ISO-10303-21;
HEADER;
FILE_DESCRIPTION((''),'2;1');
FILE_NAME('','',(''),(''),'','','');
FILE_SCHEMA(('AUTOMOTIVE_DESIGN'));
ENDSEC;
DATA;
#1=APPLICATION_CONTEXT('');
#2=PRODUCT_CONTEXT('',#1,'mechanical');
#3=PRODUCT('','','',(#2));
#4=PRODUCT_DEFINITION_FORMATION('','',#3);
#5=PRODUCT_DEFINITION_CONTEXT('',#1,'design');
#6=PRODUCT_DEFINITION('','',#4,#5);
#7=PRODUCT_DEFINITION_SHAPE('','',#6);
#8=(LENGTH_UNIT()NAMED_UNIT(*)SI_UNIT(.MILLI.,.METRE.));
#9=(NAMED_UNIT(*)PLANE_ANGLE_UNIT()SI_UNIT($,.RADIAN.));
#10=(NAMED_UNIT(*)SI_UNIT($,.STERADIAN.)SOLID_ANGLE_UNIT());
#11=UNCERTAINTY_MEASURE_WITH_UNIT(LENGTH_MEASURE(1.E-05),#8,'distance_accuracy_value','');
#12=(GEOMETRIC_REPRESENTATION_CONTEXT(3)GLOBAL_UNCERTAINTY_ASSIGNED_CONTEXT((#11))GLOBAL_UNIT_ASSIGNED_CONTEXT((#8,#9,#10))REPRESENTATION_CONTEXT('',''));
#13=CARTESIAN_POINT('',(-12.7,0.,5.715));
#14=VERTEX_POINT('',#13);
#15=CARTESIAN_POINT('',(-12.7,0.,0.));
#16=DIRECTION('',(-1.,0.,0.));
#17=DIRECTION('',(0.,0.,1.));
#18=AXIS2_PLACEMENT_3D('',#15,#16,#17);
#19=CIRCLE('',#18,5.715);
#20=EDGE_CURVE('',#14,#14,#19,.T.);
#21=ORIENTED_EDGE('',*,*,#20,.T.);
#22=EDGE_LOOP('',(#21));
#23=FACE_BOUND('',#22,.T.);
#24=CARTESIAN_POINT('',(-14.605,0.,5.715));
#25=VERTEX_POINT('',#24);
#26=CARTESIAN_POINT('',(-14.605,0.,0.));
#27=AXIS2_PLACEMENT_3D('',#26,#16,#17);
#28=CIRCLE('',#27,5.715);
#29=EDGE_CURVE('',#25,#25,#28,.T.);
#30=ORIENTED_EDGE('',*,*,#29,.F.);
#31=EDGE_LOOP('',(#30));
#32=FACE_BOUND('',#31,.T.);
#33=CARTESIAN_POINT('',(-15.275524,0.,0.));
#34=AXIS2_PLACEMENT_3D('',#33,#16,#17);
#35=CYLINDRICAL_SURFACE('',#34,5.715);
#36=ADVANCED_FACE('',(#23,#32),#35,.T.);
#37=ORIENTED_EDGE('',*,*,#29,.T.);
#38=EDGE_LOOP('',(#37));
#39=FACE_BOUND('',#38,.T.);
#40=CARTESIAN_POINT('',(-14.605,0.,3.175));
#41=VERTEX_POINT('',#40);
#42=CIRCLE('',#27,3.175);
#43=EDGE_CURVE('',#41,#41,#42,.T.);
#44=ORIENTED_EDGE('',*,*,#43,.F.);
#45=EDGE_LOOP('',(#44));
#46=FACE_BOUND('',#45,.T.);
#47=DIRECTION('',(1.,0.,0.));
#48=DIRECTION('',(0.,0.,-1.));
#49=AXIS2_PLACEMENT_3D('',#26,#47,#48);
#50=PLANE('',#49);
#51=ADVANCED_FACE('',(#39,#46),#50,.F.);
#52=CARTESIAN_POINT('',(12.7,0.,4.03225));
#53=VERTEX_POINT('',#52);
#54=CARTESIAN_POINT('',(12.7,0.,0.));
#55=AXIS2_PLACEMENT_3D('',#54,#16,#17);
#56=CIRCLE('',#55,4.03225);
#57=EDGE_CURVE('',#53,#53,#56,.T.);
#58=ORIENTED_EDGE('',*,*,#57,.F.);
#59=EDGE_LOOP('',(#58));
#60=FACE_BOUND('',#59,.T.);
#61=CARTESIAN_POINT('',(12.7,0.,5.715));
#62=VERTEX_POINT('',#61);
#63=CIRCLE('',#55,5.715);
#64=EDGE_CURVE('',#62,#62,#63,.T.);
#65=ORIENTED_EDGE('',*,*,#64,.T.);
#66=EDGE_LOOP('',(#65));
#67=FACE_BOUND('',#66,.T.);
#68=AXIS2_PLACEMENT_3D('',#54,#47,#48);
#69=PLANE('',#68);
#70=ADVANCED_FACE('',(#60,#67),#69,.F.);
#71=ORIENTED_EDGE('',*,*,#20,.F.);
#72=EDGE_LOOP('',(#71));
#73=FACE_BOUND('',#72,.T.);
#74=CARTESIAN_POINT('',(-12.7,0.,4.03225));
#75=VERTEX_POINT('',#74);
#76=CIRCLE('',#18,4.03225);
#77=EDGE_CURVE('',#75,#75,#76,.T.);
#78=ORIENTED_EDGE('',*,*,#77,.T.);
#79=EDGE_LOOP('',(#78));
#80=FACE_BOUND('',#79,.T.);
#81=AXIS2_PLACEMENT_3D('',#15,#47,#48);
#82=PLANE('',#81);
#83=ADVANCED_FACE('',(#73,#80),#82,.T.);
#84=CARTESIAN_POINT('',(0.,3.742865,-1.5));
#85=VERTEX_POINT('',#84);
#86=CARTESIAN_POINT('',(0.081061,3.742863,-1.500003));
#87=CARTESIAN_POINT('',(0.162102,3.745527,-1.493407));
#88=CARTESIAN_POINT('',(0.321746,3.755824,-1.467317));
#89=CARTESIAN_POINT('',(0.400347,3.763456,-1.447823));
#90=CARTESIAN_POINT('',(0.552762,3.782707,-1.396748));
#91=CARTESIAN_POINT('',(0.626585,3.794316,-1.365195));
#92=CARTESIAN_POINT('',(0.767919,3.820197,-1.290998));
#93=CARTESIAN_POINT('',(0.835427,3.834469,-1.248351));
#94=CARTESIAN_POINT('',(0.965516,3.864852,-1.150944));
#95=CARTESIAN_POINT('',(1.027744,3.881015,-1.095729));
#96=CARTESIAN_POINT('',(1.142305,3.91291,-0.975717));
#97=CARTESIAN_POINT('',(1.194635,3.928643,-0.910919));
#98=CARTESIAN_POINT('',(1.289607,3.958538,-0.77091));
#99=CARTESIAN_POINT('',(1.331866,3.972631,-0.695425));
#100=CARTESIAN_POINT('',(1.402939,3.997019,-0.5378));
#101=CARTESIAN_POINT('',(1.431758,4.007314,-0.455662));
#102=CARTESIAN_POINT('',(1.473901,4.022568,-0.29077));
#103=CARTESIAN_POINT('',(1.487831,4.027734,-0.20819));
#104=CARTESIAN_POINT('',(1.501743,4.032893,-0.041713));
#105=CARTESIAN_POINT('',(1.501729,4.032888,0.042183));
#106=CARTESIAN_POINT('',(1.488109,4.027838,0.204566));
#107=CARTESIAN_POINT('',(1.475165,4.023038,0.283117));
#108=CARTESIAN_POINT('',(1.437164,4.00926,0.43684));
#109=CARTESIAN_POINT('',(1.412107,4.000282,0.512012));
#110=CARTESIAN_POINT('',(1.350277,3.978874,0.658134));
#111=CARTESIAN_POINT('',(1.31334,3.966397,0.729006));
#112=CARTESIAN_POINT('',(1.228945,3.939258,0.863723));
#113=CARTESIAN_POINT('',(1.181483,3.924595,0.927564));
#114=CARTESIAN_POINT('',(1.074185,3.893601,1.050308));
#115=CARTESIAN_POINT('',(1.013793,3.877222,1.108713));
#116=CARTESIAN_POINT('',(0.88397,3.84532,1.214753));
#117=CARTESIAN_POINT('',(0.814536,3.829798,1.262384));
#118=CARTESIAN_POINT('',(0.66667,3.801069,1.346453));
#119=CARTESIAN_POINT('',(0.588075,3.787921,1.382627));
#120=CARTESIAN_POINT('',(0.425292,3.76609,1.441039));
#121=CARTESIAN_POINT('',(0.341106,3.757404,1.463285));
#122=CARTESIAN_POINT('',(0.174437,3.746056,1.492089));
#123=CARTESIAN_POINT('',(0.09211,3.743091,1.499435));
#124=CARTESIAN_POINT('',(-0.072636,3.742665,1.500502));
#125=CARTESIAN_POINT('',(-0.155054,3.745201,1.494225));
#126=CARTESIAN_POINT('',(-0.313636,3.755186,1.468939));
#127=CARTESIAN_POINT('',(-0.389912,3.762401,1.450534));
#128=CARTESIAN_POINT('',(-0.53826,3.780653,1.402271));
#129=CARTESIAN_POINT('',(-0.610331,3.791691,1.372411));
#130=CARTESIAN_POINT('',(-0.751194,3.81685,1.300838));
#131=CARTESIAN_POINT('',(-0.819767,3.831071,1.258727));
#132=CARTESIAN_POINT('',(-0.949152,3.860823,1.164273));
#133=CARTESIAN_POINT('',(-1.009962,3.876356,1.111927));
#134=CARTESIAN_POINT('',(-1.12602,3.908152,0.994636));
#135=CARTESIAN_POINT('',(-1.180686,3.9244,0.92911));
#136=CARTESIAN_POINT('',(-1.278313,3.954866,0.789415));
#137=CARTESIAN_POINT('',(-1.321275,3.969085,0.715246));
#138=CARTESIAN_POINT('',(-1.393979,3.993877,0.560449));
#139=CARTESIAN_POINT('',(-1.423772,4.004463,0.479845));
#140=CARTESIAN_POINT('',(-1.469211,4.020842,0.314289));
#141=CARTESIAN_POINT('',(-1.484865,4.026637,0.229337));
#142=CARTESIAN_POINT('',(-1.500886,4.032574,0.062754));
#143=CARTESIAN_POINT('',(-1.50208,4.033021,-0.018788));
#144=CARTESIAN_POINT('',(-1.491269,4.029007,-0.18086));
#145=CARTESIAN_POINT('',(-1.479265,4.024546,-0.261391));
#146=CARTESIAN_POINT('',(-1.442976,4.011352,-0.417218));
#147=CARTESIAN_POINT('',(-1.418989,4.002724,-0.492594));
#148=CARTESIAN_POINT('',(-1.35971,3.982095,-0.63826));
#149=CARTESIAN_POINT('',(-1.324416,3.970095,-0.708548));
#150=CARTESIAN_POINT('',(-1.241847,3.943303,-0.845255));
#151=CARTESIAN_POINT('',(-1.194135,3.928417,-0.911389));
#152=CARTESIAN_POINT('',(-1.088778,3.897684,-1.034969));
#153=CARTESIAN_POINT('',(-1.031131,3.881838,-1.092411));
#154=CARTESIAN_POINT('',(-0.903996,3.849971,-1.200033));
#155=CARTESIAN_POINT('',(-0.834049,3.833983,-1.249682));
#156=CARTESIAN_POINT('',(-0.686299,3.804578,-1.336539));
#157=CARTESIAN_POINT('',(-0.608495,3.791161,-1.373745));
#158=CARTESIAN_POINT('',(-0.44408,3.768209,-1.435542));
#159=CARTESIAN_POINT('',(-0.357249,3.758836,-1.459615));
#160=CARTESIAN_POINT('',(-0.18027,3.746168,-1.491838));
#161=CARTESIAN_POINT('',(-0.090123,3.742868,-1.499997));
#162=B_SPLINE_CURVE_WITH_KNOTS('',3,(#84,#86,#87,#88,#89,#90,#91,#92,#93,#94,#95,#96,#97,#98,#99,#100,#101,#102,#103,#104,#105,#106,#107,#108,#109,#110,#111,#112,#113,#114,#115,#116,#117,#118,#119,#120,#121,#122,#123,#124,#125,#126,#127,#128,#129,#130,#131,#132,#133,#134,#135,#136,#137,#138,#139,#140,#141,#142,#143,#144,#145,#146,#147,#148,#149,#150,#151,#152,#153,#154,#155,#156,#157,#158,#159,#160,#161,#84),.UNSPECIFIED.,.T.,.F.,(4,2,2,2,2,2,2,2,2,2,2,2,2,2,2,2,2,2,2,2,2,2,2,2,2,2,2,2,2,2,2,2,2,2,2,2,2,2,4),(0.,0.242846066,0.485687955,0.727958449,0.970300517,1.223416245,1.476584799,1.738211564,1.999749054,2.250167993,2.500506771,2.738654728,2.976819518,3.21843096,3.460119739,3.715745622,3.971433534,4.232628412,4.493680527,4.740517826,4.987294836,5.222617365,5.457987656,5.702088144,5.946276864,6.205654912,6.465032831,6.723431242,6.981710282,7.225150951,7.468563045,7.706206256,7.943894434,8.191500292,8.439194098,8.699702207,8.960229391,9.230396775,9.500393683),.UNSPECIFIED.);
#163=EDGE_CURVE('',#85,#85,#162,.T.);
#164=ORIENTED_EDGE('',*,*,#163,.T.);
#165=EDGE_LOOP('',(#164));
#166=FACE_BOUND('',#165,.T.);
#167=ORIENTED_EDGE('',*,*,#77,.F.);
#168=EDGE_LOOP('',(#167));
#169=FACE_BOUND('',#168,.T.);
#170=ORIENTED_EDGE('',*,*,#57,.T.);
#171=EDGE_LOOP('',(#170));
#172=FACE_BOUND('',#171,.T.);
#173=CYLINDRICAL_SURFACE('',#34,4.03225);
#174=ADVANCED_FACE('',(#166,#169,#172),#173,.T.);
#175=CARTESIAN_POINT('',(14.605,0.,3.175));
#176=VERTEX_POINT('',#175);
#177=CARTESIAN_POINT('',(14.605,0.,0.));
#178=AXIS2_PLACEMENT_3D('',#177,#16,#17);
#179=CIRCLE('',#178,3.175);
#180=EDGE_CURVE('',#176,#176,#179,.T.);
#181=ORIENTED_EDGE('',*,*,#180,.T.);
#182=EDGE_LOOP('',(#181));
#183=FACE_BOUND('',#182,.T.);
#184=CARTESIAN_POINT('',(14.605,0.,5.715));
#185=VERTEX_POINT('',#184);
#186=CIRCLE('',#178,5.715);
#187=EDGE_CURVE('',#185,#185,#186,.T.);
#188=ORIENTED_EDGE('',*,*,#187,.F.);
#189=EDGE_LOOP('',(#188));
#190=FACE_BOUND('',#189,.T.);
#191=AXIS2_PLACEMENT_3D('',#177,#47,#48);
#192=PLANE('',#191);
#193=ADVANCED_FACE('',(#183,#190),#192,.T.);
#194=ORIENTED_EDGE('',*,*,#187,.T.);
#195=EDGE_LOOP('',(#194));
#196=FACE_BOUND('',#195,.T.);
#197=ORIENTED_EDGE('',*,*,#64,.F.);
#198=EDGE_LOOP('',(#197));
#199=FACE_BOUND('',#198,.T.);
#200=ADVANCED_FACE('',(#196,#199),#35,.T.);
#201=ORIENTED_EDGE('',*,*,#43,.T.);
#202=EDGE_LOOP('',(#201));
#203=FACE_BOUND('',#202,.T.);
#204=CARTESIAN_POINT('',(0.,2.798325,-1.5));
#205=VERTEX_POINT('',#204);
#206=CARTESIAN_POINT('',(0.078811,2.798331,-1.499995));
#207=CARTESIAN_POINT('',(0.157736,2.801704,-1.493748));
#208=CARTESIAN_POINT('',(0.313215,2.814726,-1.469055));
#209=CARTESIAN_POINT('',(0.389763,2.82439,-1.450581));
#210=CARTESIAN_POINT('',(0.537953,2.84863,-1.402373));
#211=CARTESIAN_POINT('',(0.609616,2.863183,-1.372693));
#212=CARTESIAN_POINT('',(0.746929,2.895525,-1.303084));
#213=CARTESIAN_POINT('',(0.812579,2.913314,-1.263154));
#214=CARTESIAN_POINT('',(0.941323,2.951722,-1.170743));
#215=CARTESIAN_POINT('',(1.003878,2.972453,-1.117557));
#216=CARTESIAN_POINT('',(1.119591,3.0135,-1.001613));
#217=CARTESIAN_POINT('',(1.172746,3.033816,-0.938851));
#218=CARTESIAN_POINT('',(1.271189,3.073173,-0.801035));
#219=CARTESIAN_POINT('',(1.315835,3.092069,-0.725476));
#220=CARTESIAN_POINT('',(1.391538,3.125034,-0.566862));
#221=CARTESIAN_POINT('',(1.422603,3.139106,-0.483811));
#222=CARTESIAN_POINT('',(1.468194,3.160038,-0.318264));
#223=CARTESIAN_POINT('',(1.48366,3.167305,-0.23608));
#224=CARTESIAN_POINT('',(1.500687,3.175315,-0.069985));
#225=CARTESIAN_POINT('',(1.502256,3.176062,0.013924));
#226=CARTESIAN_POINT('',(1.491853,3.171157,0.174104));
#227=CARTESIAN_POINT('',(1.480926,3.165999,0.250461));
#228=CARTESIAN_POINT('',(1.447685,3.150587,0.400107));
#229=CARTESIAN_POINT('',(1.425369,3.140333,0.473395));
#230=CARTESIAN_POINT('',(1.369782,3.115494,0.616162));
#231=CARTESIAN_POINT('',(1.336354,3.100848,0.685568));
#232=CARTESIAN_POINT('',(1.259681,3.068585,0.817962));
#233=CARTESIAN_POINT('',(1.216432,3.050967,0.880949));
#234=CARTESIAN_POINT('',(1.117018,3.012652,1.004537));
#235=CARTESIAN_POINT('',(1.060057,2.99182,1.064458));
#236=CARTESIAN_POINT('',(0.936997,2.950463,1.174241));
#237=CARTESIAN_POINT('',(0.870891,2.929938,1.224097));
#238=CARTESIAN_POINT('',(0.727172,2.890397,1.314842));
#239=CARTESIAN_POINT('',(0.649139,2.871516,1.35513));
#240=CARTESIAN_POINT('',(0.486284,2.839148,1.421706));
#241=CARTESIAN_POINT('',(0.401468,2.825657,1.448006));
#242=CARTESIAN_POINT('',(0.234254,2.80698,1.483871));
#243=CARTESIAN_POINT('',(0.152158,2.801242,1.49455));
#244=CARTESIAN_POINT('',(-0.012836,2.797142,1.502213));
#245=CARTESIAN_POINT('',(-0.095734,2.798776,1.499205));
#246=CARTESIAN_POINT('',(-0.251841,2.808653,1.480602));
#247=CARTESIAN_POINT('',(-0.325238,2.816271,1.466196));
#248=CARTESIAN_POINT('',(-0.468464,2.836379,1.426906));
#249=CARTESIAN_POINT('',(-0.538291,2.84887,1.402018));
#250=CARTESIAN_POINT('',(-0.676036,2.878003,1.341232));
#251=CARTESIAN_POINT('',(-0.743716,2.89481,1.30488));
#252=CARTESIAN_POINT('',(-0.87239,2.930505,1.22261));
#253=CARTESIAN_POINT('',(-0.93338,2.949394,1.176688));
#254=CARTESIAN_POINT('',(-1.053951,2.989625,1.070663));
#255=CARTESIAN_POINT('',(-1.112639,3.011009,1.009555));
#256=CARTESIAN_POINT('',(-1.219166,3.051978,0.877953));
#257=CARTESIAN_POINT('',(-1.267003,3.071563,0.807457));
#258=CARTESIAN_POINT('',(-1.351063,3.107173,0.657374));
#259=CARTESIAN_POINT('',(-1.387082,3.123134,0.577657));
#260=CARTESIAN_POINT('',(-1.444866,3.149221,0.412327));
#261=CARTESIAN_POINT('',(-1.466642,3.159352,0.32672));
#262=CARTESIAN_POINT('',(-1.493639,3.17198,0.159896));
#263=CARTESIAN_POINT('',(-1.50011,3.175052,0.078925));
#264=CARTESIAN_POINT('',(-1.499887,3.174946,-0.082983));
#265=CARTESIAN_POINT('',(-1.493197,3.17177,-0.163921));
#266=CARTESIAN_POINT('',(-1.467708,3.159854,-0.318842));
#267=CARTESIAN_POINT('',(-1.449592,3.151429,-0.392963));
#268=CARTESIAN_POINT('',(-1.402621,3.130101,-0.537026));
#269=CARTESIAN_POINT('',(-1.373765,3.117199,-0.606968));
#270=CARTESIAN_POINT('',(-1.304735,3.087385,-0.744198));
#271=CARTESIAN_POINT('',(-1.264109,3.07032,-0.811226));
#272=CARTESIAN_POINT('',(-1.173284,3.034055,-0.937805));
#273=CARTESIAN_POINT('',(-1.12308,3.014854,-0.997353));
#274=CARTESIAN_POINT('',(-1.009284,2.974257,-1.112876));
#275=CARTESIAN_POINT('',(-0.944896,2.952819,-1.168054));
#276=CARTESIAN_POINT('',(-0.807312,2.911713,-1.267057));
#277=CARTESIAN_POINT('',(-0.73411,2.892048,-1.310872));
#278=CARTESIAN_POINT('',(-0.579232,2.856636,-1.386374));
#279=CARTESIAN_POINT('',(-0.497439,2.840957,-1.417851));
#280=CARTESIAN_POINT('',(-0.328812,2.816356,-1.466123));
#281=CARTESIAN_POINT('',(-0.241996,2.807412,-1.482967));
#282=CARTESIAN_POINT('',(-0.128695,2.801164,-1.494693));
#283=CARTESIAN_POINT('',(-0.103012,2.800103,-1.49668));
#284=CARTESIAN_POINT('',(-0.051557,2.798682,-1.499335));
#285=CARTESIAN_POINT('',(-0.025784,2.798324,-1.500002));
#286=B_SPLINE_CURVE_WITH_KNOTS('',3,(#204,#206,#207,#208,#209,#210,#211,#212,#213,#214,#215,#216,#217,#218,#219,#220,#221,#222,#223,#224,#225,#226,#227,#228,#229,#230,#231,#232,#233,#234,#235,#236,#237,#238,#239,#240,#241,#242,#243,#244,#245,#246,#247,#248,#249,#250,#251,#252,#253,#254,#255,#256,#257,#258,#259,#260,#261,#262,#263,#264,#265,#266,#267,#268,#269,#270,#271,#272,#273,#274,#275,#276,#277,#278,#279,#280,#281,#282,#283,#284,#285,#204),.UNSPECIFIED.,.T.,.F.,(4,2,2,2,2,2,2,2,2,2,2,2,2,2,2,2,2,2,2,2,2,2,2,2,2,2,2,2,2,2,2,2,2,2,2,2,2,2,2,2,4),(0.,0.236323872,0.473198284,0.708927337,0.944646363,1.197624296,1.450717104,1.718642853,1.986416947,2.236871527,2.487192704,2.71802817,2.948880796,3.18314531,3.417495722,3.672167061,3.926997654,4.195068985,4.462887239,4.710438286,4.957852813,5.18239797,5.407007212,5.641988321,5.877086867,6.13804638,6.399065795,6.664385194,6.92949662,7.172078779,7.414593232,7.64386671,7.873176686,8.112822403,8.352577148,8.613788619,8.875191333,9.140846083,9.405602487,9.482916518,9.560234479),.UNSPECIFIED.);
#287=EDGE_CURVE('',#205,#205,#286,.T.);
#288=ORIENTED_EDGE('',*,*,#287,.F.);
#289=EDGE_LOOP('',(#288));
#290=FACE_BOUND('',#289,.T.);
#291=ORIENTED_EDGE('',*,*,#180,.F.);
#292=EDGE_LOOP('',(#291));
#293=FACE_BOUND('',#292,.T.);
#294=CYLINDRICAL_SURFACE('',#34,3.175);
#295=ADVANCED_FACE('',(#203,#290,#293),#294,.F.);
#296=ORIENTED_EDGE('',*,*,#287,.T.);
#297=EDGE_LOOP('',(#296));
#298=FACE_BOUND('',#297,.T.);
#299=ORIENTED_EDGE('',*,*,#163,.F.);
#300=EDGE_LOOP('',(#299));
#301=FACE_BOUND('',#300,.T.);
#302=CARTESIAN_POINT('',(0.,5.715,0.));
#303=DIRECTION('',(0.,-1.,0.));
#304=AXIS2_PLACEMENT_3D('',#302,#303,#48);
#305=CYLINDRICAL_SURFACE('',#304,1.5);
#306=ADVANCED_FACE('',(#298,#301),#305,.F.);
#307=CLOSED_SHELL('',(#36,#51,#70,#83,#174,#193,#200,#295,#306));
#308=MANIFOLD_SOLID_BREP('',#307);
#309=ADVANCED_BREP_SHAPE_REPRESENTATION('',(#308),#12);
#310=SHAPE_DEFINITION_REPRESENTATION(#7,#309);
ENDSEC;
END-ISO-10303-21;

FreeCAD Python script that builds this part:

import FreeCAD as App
import Part
import Sketcher
Q = App.Units.Quantity

doc = App.newDocument("Part")
params = doc.addObject("Spreadsheet::Sheet", "Params")
for row, (alias, value) in enumerate([
    ("sketch1_width", "1 in"),
    ("sketch1_height", "0.1 in"),
    ("sketch1_width2", "1.15 in"),
    ("revolution_angle", "360 deg"),
], start=1):
    params.set(f"A{row}", alias)
    params.set(f"B{row}", "=" + value)
    params.setAlias(f"B{row}", alias)

body = doc.addObject("PartDesign::Body", "Body")

# Sketch on XY plane
sketch1 = body.newObject("Sketcher::SketchObject", "Sketch")
sketch1.AttachmentSupport = (doc.getObject("XY_Plane"), [""])
sketch1.MapMode = "FlatFace"
sketch1.addGeometry([
    Part.LineSegment(App.Vector(14.6, 3.2, 0), App.Vector(14.6, 5.7, 0)),  # 0
    Part.LineSegment(App.Vector(14.6, 5.7, 0), App.Vector(12.7, 5.7, 0)),  # 1
    Part.LineSegment(App.Vector(12.7, 5.7, 0), App.Vector(12.7, 4, 0)),  # 2
    Part.LineSegment(App.Vector(12.7, 4, 0), App.Vector(-12.7, 4, 0)),  # 3
    Part.LineSegment(App.Vector(-12.7, 4, 0), App.Vector(-12.7, 5.7, 0)),  # 4
    Part.LineSegment(App.Vector(-12.7, 5.7, 0), App.Vector(-14.6, 5.7, 0)),  # 5
    Part.LineSegment(App.Vector(-14.6, 5.7, 0), App.Vector(-14.6, 3.2, 0)),  # 6
    Part.LineSegment(App.Vector(-14.6, 3.2, 0), App.Vector(14.6, 3.2, 0)),  # 7
], False)
sketch1.addConstraint([
    Sketcher.Constraint("Coincident", 0, 2, 1, 1),
    Sketcher.Constraint("Coincident", 1, 2, 2, 1),
    Sketcher.Constraint("Coincident", 2, 2, 3, 1),
    Sketcher.Constraint("Coincident", 3, 2, 4, 1),
    Sketcher.Constraint("Coincident", 4, 2, 5, 1),
    Sketcher.Constraint("Coincident", 5, 2, 6, 1),
    Sketcher.Constraint("Coincident", 6, 2, 7, 1),
    Sketcher.Constraint("Coincident", 7, 2, 0, 1),
    Sketcher.Constraint("Vertical", 0),
    Sketcher.Constraint("Horizontal", 1),
    Sketcher.Constraint("Vertical", 2),
    Sketcher.Constraint("Horizontal", 3),
    Sketcher.Constraint("Vertical", 4),
    Sketcher.Constraint("Horizontal", 5),
    Sketcher.Constraint("Vertical", 6),
    Sketcher.Constraint("Horizontal", 7),
    Sketcher.Constraint("Symmetric", 1, 2, 4, 2, -2),
    Sketcher.Constraint("Equal", 1, 5),
    Sketcher.Constraint("DistanceX", 3, 2, 3, 1, Q("1 in")),
    Sketcher.Constraint("DistanceY", 0, 1, 0, 2, Q("0.1 in")),
    Sketcher.Constraint("DistanceX", 7, 1, 7, 2, Q("1.15 in")),
    Sketcher.Constraint("DistanceY", -1, 1, 0, 2, Q("0.225 in")),
    Sketcher.Constraint("DistanceY", 2, 2, 2, 1, Q("1.68275 mm")),
])
sketch1.setExpression("Constraints[18]", "Params.sketch1_width")
sketch1.setExpression("Constraints[19]", "Params.sketch1_height")
sketch1.setExpression("Constraints[20]", "Params.sketch1_width2")
revolution = body.newObject("PartDesign::Revolution", "Revolution")
revolution.Profile = sketch1
revolution.ReferenceAxis = (sketch1, ["H_Axis"])
revolution.setExpression("Angle", "Params.revolution_angle")

# Sketch on XZ plane
sketch2 = body.newObject("Sketcher::SketchObject", "Sketch001")
sketch2.AttachmentSupport = (doc.getObject("XZ_Plane"), [""])
sketch2.MapMode = "FlatFace"
sketch2.addGeometry(Part.Circle(App.Vector(0, 0, 0), App.Vector(0, 0, 1), 1.5), False)
sketch2.addConstraint([
    Sketcher.Constraint("Coincident", 0, 3, -1, 1),
    Sketcher.Constraint("Diameter", 0, Q("3 mm")),
])
pocket1 = body.newObject("PartDesign::Pocket", "Pocket")
pocket1.Profile = sketch2
pocket1.Type = "ThroughAll"

doc.recompute()
